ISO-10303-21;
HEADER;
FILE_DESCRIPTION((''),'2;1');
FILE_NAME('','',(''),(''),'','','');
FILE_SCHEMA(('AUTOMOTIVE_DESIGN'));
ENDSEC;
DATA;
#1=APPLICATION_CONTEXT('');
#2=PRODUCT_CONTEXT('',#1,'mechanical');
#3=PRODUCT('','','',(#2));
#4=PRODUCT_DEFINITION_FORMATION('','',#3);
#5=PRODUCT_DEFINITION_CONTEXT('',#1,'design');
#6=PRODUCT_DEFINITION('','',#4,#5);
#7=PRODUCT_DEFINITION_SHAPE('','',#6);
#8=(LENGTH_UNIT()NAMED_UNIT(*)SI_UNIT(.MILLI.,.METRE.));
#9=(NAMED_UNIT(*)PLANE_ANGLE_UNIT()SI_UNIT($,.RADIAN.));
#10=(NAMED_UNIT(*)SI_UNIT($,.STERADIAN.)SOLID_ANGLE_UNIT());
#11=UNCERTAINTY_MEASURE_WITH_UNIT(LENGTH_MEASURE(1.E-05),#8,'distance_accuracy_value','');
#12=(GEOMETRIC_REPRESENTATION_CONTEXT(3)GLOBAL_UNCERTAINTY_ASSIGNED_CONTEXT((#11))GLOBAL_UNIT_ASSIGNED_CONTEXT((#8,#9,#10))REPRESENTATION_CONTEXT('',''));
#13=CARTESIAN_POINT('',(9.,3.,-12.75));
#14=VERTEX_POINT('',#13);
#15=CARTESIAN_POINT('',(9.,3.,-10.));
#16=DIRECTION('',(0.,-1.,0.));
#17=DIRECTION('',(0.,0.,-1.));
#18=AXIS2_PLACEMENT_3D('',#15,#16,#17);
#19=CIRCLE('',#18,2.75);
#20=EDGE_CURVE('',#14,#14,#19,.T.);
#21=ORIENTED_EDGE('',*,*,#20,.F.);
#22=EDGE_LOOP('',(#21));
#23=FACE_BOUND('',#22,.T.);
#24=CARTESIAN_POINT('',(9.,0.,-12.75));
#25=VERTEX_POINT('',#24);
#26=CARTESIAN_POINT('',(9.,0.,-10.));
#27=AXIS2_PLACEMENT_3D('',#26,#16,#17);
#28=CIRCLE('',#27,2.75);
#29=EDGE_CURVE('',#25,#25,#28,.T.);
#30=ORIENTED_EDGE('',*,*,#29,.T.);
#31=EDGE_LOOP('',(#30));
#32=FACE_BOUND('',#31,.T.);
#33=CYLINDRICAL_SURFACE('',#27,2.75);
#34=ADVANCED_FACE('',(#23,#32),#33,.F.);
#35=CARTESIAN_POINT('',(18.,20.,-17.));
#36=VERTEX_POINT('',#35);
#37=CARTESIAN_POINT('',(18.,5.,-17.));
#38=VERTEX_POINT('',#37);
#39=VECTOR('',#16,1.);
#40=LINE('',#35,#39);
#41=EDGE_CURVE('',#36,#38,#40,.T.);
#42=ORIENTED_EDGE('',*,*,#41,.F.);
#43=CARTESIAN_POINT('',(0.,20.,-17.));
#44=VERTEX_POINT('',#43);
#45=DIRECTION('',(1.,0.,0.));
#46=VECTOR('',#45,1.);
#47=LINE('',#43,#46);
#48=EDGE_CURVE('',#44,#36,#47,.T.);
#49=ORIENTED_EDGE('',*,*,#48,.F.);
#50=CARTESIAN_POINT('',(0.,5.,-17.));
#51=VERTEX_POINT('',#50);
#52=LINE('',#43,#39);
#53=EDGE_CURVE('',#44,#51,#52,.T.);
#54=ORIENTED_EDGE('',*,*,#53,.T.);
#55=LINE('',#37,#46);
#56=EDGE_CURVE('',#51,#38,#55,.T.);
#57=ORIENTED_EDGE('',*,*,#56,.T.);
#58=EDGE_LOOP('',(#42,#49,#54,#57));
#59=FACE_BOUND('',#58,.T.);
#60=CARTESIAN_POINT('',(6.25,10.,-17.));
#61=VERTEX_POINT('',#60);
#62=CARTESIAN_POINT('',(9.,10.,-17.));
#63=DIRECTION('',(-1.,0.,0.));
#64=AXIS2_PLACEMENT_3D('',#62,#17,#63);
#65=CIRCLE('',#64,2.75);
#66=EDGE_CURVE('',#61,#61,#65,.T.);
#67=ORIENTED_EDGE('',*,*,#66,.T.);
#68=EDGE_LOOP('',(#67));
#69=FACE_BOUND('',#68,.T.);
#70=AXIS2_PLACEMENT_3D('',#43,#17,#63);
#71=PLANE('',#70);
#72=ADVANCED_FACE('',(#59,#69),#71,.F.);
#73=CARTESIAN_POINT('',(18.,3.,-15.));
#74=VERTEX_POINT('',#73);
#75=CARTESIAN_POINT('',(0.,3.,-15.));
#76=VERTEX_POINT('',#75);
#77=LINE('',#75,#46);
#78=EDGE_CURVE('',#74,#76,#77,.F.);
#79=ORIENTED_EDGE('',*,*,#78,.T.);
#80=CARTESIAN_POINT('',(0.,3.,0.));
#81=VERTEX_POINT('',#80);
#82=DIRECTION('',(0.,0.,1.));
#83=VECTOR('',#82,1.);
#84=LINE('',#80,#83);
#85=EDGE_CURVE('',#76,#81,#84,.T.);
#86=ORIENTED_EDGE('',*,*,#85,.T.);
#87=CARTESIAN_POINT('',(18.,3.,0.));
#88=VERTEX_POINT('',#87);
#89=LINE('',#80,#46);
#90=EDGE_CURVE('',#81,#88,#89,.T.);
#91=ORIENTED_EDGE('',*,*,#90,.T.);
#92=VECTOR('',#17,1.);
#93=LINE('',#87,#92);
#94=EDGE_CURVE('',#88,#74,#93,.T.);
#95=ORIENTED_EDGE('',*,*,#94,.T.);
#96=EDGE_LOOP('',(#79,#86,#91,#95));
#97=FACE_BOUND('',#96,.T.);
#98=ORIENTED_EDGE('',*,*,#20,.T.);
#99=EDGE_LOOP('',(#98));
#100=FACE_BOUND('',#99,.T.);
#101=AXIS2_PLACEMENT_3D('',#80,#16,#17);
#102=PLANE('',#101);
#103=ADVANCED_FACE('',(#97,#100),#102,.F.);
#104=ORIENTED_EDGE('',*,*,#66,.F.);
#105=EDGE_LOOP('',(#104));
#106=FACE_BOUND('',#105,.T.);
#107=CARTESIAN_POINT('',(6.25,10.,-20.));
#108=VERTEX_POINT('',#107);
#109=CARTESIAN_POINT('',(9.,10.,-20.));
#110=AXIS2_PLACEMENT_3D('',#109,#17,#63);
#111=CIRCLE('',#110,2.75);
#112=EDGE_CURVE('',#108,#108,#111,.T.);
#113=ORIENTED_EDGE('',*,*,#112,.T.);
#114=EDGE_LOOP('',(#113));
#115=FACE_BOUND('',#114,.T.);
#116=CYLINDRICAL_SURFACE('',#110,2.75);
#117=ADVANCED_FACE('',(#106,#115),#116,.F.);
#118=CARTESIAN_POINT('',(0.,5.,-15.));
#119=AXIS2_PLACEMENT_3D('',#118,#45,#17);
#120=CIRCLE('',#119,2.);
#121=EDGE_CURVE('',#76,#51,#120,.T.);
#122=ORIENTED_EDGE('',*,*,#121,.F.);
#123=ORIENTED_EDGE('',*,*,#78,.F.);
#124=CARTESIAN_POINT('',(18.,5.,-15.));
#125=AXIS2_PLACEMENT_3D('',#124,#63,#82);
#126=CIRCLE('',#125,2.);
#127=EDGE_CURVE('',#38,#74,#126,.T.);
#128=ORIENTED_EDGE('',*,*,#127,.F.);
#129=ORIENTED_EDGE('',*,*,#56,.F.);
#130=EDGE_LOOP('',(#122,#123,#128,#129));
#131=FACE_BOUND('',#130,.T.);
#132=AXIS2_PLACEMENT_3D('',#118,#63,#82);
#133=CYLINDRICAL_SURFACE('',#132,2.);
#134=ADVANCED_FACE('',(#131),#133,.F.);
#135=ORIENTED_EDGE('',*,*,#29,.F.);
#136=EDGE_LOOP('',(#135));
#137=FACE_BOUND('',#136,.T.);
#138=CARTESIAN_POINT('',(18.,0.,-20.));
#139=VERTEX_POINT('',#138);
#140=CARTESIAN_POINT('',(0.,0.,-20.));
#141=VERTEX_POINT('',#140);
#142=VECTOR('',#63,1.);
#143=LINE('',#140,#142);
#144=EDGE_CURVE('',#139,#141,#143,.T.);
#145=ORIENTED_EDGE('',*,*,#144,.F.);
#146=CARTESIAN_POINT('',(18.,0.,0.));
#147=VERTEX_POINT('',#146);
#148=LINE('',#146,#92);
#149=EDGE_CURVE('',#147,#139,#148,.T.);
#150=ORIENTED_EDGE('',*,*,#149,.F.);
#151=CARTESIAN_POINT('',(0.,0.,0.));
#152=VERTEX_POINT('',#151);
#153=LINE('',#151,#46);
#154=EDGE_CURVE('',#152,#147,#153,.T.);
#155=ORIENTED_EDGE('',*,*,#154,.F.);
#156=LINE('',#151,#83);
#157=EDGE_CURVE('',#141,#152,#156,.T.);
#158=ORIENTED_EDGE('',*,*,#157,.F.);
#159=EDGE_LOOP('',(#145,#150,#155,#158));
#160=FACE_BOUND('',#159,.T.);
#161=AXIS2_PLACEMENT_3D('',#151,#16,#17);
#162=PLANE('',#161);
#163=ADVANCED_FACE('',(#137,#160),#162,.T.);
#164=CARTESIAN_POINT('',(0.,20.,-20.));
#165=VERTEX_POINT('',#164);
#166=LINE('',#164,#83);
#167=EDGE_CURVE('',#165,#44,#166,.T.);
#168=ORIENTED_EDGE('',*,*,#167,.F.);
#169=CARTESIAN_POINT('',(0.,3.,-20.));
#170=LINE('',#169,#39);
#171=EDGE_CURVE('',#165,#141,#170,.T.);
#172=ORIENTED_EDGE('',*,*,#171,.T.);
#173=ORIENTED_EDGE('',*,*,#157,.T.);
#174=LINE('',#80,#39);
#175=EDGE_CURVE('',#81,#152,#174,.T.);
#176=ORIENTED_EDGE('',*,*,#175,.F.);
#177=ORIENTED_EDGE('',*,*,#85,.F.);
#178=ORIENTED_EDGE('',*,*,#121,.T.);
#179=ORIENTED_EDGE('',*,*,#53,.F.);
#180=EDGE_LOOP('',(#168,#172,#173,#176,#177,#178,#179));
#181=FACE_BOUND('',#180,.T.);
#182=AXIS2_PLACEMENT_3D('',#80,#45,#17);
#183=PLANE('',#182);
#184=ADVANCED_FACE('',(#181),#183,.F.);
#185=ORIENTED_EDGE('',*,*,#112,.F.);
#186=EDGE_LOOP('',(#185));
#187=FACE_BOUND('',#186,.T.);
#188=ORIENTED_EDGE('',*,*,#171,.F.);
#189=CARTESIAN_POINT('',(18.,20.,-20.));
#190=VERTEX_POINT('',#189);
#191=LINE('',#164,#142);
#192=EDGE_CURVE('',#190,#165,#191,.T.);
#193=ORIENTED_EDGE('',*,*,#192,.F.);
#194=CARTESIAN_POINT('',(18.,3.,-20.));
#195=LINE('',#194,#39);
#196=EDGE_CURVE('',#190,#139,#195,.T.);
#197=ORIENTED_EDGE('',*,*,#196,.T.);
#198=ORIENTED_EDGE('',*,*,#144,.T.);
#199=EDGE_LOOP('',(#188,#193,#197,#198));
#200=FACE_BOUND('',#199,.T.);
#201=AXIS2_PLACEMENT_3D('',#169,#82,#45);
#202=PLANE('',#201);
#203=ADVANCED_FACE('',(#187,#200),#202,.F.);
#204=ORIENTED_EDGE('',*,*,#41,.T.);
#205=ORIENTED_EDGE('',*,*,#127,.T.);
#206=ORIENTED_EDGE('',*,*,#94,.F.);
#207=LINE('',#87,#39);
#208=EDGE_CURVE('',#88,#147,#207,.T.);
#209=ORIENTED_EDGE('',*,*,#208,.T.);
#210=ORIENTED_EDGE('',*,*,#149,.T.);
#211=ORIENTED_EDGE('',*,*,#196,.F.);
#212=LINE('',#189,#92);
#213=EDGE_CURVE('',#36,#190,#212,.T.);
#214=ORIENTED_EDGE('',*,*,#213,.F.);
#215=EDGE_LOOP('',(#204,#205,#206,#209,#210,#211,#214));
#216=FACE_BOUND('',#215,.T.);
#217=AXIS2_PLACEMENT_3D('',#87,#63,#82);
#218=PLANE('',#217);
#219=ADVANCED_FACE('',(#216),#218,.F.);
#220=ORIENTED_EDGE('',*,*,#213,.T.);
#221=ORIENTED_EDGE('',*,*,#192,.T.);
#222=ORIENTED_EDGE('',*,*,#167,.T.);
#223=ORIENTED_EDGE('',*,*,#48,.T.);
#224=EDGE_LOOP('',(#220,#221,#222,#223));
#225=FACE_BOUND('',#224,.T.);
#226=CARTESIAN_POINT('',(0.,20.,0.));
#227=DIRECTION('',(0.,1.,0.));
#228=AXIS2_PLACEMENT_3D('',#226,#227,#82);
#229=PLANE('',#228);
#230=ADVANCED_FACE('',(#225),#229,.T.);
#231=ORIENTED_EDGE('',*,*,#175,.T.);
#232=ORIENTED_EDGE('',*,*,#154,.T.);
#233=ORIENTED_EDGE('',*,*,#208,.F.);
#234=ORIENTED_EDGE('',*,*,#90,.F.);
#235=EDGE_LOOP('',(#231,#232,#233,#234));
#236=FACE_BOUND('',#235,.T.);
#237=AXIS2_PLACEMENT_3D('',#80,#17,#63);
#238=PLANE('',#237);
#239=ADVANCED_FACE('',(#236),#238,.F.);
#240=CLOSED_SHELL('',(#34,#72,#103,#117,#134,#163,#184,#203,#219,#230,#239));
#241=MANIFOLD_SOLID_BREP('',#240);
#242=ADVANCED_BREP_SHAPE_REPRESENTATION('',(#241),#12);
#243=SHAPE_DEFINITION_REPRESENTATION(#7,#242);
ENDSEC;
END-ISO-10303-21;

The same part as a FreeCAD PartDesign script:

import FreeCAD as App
import Part
import Sketcher
from FreeCAD import Vector
Q = App.Units.Quantity


def edges_at(feature, points):
    """Names of the edges that pass closest to the given points."""
    edges = feature.Shape.Edges
    near = lambda p: min(range(len(edges)), key=lambda i: edges[i].distToShape(Part.Vertex(*p))[0])
    return sorted({f"Edge{near(p) + 1}" for p in points})


def add_polygon(sketch, points):
    """Adds a closed chain of lines whose ends are joined by coincident constraints."""
    first, n = sketch.GeometryCount, len(points)
    for a, b in zip(points, points[1:] + points[:1]):
        sketch.addGeometry(Part.LineSegment(App.Vector(*a, 0), App.Vector(*b, 0)), False)
    for i in range(n):
        sketch.addConstraint(Sketcher.Constraint("Coincident", first + i, 2, first + (i + 1) % n, 1))

doc = App.newDocument("Part")
body = doc.addObject("PartDesign::Body", "Body")

# Sketch on XZ plane
sketch1 = body.newObject("Sketcher::SketchObject", "Sketch")
sketch1.AttachmentSupport = (doc.getObject("XZ_Plane"), [""])
sketch1.MapMode = "FlatFace"
add_polygon(sketch1, [(0, -20), (0, 0), (18, 0), (18, -20)])  # lines 0-3
sketch1.addConstraint(Sketcher.Constraint("Vertical", 0))
sketch1.addConstraint(Sketcher.Constraint("Horizontal", 1))
sketch1.addConstraint(Sketcher.Constraint("Vertical", 2))
sketch1.addConstraint(Sketcher.Constraint("Horizontal", 3))
sketch1.addConstraint(Sketcher.Constraint("Coincident", 0, 2, -1, 1))
sketch1.addConstraint(Sketcher.Constraint("DistanceX", 1, 1, 1, 2, Q("18 mm")))
sketch1.addConstraint(Sketcher.Constraint("DistanceY", 0, 1, 0, 2, Q("20 mm")))
pad1 = body.newObject("PartDesign::Pad", "Pad")
pad1.Profile = sketch1
pad1.Length = 3
pad1.Reversed = True

# Sketch on XZ plane
sketch2 = body.newObject("Sketcher::SketchObject", "Sketch001")
sketch2.AttachmentSupport = (doc.getObject("XZ_Plane"), [""])
sketch2.MapMode = "FlatFace"
sketch2.AttachmentOffset = App.Placement(Vector(0, 0, -3), App.Rotation())
add_polygon(sketch2, [(0, -20), (0, -17), (18, -17), (18, -20)])  # lines 0-3
sketch2.addConstraint(Sketcher.Constraint("Vertical", 0))
sketch2.addConstraint(Sketcher.Constraint("Horizontal", 1))
sketch2.addConstraint(Sketcher.Constraint("Vertical", 2))
sketch2.addConstraint(Sketcher.Constraint("Horizontal", 3))
sketch2.addConstraint(Sketcher.Constraint("PointOnObject", 0, 2, -2))
sketch2.addConstraint(Sketcher.Constraint("DistanceX", 1, 1, 1, 2, Q("18 mm")))
sketch2.addConstraint(Sketcher.Constraint("DistanceY", 0, 1, 0, 2, Q("3 mm")))
sketch2.addConstraint(Sketcher.Constraint("DistanceY", 0, 2, -1, 1, Q("17 mm")))
pad2 = body.newObject("PartDesign::Pad", "Pad001")
pad2.Profile = sketch2
pad2.Length = 17
pad2.Reversed = True

# Sketch on XZ plane
sketch3 = body.newObject("Sketcher::SketchObject", "Sketch002")
sketch3.AttachmentSupport = (doc.getObject("XZ_Plane"), [""])
sketch3.MapMode = "FlatFace"
sketch3.addGeometry(Part.Circle(Vector(9, -10, 0), Vector(0, 0, 1), 2.75), False)
sketch3.addConstraint(Sketcher.Constraint("Diameter", 0, Q("5.5 mm")))
sketch3.addConstraint(Sketcher.Constraint("DistanceX", -1, 1, 0, 3, Q("9 mm")))
sketch3.addConstraint(Sketcher.Constraint("DistanceY", 0, 3, -1, 1, Q("10 mm")))
doc.recompute()
hole = body.newObject("PartDesign::Hole", "Hole")
hole.Profile = sketch3
hole.ThreadType = "None"
hole.Diameter = 5.5
hole.DepthType = "ThroughAll"

# Sketch on XY plane
sketch4 = body.newObject("Sketcher::SketchObject", "Sketch003")
sketch4.AttachmentSupport = (doc.getObject("XY_Plane"), [""])
sketch4.MapMode = "FlatFace"
sketch4.AttachmentOffset = App.Placement(Vector(0, 0, -20), App.Rotation())
sketch4.addGeometry(Part.Circle(Vector(9, 10, 0), Vector(0, 0, 1), 2.75), False)
sketch4.addConstraint(Sketcher.Constraint("Diameter", 0, Q("5.5 mm")))
sketch4.addConstraint(Sketcher.Constraint("DistanceX", -1, 1, 0, 3, Q("9 mm")))
sketch4.addConstraint(Sketcher.Constraint("DistanceY", -1, 1, 0, 3, Q("10 mm")))
doc.recompute()
hole2 = body.newObject("PartDesign::Hole", "Hole001")
hole2.Profile = sketch4
hole2.ThreadType = "None"
hole2.Diameter = 5.5
hole2.DepthType = "ThroughAll"
hole2.Reversed = True
doc.recompute()

fillet = body.newObject("PartDesign::Fillet", "Fillet")
fillet.Base = (hole2, edges_at(hole2, [(9, 3, -17)]))
fillet.Radius = 2

doc.recompute()
